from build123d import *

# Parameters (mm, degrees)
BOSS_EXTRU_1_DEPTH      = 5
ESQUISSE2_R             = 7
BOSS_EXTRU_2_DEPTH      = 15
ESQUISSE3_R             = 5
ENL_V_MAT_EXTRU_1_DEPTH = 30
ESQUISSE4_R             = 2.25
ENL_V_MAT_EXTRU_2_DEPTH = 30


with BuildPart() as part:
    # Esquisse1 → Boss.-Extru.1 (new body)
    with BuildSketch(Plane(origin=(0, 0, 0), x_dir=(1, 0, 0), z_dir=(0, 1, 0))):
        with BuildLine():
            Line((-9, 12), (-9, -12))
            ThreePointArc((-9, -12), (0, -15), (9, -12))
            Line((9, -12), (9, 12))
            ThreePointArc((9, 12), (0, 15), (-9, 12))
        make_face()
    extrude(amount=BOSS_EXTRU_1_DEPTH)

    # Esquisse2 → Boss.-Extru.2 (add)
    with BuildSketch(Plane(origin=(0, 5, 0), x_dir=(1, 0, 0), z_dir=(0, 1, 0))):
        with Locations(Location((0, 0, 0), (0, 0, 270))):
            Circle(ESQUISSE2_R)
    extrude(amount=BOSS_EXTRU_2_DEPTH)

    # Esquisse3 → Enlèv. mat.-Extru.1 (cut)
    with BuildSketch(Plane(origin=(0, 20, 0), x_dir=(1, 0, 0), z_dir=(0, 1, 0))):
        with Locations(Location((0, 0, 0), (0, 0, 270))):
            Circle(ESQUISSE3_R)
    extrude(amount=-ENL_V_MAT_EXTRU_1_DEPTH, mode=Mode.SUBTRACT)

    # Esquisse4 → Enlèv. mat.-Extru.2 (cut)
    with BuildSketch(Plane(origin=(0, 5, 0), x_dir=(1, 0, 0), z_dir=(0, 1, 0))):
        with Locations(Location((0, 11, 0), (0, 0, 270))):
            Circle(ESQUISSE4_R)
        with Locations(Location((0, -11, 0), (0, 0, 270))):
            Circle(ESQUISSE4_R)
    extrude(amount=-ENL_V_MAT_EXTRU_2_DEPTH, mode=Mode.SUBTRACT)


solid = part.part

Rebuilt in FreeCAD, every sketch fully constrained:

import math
import FreeCAD as App
import Part
import Sketcher

V = App.Vector

doc = App.newDocument("Part")
body = doc.addObject("PartDesign::Body", "Body")

# Sketch on XZ plane
sketch1 = body.newObject("Sketcher::SketchObject", "Sketch")
sketch1.AttachmentSupport = (doc.getObject("XZ_Plane"), [""])
sketch1.MapMode = "FlatFace"
sketch1.addGeometry(Part.LineSegment(V(-9, -12, 0), V(-9, 12, 0)), False)
sketch1.addGeometry(Part.ArcOfCircle(Part.Circle(V(0, 0, 0), V(0, 0, 1), 15), math.radians(53), math.radians(127)), False)
sketch1.addGeometry(Part.LineSegment(V(9, 12, 0), V(9, -12, 0)), False)
sketch1.addGeometry(Part.ArcOfCircle(Part.Circle(V(0, 0, 0), V(0, 0, 1), 15), math.radians(-127), math.radians(-53)), False)
sketch1.addConstraint(Sketcher.Constraint("Coincident", 0, 2, 1, 2))
sketch1.addConstraint(Sketcher.Constraint("Coincident", 1, 1, 2, 1))
sketch1.addConstraint(Sketcher.Constraint("Coincident", 2, 2, 3, 2))
sketch1.addConstraint(Sketcher.Constraint("Coincident", 3, 1, 0, 1))
sketch1.addConstraint(Sketcher.Constraint("Vertical", 0))
sketch1.addConstraint(Sketcher.Constraint("Vertical", 2))
sketch1.addConstraint(Sketcher.Constraint("Coincident", 1, 3, -1, 1))
sketch1.addConstraint(Sketcher.Constraint("Coincident", 3, 3, -1, 1))
sketch1.addConstraint(Sketcher.Constraint("Equal", 1, 3))
sketch1.addConstraint(Sketcher.Constraint("Horizontal", 0, 2, 1, 1))
sketch1.addConstraint(Sketcher.Constraint("Radius", 1, 15.0))
sketch1.addConstraint(Sketcher.Constraint("DistanceY", 0, 1, 0, 2, 24.0))
pad1 = body.newObject("PartDesign::Pad", "Pad")
pad1.Profile = sketch1
pad1.Length = 5
pad1.Reversed = True

# Sketch on XZ plane
sketch2 = body.newObject("Sketcher::SketchObject", "Sketch001")
sketch2.AttachmentSupport = (doc.getObject("XZ_Plane"), [""])
sketch2.MapMode = "FlatFace"
sketch2.AttachmentOffset = App.Placement(V(0, 0, -5), App.Rotation())
sketch2.addGeometry(Part.Circle(V(0, 0, 0), V(0, 0, 1), 7), False)
sketch2.addConstraint(Sketcher.Constraint("Coincident", 0, 3, -1, 1))
sketch2.addConstraint(Sketcher.Constraint("Diameter", 0, 14.0))
pad2 = body.newObject("PartDesign::Pad", "Pad001")
pad2.Profile = sketch2
pad2.Length = 15
pad2.Reversed = True

# Sketch on XZ plane
sketch3 = body.newObject("Sketcher::SketchObject", "Sketch002")
sketch3.AttachmentSupport = (doc.getObject("XZ_Plane"), [""])
sketch3.MapMode = "FlatFace"
sketch3.AttachmentOffset = App.Placement(V(0, 0, -20), App.Rotation())
sketch3.addGeometry(Part.Circle(V(0, 0, 0), V(0, 0, 1), 5), False)
sketch3.addConstraint(Sketcher.Constraint("Coincident", 0, 3, -1, 1))
sketch3.addConstraint(Sketcher.Constraint("Diameter", 0, 10.0))
pocket1 = body.newObject("PartDesign::Pocket", "Pocket")
pocket1.Profile = sketch3
pocket1.Length = 30
pocket1.Reversed = True

# Sketch on XZ plane
sketch4 = body.newObject("Sketcher::SketchObject", "Sketch003")
sketch4.AttachmentSupport = (doc.getObject("XZ_Plane"), [""])
sketch4.MapMode = "FlatFace"
sketch4.AttachmentOffset = App.Placement(V(0, 0, -5), App.Rotation())
sketch4.addGeometry(Part.Circle(V(0, -11, 0), V(0, 0, 1), 2.2), False)
sketch4.addGeometry(Part.Circle(V(0, 11, 0), V(0, 0, 1), 2.2), False)
sketch4.addConstraint(Sketcher.Constraint("Equal", 0, 1))
sketch4.addConstraint(Sketcher.Constraint("Symmetric", 0, 3, 1, 3, -1, 1))
sketch4.addConstraint(Sketcher.Constraint("PointOnObject", 0, 3, -2))
sketch4.addConstraint(Sketcher.Constraint("Diameter", 0, 4.5))
sketch4.addConstraint(Sketcher.Constraint("DistanceY", 0, 3, -1, 1, 11.0))
pocket2 = body.newObject("PartDesign::Pocket", "Pocket001")
pocket2.Profile = sketch4
pocket2.Length = 30
pocket2.Reversed = True

doc.recompute()
